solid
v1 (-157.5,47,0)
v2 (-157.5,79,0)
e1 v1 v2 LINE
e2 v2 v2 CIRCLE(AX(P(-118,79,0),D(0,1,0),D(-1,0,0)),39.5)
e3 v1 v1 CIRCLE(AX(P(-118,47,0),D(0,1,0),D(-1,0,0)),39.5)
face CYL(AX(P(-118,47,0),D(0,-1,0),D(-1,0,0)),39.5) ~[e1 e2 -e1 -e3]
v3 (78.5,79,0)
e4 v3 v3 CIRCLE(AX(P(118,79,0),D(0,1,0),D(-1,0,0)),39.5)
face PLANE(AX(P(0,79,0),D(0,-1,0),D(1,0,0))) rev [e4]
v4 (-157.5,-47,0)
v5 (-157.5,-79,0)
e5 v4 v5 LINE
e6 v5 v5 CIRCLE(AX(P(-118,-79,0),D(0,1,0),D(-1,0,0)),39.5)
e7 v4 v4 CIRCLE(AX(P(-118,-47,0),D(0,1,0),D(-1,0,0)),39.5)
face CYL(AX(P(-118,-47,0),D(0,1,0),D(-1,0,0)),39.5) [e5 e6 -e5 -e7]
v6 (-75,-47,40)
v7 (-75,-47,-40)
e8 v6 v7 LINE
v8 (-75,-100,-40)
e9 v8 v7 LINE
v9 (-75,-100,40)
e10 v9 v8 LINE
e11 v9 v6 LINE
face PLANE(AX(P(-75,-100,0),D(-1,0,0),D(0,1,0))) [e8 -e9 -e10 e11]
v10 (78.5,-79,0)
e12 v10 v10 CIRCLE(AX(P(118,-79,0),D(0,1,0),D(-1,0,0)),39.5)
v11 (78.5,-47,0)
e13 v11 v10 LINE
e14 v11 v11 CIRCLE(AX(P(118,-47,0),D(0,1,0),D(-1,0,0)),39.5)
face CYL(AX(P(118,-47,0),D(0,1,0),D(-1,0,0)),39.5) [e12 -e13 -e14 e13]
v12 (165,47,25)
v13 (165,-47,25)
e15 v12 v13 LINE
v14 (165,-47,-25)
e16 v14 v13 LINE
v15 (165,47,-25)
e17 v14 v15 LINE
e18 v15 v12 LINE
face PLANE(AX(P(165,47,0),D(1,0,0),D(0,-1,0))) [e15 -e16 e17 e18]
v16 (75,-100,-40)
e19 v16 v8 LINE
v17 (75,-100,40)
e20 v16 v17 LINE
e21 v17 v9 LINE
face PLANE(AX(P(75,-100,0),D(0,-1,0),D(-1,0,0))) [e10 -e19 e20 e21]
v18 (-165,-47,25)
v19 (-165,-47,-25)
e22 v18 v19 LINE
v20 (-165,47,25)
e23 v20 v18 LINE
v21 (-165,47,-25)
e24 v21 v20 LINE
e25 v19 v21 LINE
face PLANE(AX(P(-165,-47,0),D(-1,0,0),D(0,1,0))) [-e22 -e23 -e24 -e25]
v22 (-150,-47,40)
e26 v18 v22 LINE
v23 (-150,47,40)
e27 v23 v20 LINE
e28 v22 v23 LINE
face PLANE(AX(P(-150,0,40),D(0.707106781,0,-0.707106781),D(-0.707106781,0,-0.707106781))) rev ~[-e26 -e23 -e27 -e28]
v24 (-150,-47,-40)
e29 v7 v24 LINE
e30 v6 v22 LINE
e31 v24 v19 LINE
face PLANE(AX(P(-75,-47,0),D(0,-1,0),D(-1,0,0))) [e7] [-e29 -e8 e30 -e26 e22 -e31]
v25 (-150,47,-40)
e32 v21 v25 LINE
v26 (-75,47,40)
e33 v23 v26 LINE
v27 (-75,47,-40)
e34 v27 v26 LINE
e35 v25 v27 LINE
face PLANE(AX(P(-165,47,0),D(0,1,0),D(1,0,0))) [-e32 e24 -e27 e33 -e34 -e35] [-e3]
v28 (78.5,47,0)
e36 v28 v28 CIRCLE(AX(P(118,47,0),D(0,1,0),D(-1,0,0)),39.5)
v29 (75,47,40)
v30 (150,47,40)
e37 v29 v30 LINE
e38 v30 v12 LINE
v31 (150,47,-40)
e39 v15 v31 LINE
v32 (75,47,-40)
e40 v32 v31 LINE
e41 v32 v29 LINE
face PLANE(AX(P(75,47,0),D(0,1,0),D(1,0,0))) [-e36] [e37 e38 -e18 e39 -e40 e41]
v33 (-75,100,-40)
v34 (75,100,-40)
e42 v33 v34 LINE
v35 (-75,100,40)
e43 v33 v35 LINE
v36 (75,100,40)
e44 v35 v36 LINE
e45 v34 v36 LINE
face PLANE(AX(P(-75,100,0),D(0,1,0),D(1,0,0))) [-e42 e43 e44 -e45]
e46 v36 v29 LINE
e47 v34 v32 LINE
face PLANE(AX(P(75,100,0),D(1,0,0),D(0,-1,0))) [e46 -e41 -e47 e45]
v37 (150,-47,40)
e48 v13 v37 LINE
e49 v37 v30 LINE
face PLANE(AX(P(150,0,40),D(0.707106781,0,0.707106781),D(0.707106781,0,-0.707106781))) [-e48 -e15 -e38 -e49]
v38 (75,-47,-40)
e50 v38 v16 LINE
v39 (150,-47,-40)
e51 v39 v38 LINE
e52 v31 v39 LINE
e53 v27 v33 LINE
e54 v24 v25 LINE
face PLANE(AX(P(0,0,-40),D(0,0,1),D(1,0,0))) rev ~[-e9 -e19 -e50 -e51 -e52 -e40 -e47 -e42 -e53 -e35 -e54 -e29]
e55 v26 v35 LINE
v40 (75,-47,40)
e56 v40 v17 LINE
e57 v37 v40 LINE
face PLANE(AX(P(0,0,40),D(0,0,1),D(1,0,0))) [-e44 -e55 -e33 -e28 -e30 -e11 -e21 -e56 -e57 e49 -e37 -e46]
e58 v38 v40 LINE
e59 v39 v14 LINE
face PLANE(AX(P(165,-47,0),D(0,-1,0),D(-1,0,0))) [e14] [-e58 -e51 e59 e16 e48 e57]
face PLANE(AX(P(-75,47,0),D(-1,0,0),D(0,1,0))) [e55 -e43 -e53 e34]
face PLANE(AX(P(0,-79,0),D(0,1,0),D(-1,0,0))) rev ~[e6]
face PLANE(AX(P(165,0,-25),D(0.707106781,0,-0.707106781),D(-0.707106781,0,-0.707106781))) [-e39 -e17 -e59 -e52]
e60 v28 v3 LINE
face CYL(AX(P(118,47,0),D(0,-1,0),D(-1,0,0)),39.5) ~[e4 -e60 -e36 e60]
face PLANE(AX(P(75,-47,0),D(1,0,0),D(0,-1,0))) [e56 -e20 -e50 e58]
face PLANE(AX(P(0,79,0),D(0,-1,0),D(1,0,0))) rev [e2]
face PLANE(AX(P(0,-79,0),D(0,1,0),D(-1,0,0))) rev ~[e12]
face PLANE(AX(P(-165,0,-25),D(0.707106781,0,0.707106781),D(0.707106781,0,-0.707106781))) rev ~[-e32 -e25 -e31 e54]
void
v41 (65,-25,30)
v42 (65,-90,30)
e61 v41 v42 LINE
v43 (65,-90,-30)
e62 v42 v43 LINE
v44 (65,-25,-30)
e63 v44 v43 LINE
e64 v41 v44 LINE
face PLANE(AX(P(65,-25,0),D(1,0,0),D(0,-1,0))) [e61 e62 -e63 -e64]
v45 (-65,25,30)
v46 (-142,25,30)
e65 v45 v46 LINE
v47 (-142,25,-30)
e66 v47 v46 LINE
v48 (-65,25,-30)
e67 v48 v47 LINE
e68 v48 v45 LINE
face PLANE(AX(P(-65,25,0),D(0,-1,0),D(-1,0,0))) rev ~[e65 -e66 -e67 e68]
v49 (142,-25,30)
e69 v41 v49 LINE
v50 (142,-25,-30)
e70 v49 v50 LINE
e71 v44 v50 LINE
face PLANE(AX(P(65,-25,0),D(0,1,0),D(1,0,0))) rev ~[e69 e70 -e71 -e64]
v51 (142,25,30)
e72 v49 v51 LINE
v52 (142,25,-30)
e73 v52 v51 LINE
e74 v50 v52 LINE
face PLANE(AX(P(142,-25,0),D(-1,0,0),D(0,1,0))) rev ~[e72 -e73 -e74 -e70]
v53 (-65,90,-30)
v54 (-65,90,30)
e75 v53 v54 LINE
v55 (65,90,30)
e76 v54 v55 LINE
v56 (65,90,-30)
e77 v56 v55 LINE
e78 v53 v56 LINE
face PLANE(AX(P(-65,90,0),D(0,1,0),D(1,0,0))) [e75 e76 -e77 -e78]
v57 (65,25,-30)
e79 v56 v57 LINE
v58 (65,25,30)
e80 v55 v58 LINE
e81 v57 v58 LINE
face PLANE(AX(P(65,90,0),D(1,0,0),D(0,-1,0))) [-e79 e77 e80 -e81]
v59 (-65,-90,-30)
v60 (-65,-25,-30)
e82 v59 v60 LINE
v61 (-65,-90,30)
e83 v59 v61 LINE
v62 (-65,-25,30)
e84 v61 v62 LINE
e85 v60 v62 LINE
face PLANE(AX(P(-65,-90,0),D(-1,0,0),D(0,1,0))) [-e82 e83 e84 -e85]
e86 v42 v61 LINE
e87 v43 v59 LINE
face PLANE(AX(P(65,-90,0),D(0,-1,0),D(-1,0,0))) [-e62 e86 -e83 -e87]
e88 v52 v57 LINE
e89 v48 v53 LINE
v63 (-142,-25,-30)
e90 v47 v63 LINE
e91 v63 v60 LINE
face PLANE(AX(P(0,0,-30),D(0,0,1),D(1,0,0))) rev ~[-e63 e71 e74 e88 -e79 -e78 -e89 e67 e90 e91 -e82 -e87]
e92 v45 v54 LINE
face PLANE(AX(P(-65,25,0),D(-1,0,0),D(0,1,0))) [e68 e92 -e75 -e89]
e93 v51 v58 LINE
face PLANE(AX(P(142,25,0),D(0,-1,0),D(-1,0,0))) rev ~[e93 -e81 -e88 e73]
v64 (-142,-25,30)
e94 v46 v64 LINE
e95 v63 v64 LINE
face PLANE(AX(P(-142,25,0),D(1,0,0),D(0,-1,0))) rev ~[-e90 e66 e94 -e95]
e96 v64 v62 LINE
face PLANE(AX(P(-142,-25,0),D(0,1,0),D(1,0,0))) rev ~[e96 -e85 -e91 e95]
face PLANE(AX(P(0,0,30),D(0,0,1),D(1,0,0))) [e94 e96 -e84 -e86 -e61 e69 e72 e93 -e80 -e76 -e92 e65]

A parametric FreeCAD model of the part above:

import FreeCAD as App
import Part
import Sketcher

V = App.Vector
Q = App.Units.Quantity


def add_polygon(sketch, points):
    """Adds a closed chain of lines whose ends are joined by coincident constraints."""
    first, n = sketch.GeometryCount, len(points)
    for a, b in zip(points, points[1:] + points[:1]):
        sketch.addGeometry(Part.LineSegment(App.Vector(*a, 0), App.Vector(*b, 0)), False)
    for i in range(n):
        sketch.addConstraint(Sketcher.Constraint("Coincident", first + i, 2, first + (i + 1) % n, 1))

doc = App.newDocument("Part")
body = doc.addObject("PartDesign::Body", "Body")

# Sketch on XY plane
sketch1 = body.newObject("Sketcher::SketchObject", "Sketch")
sketch1.AttachmentSupport = (doc.getObject("XY_Plane"), [""])
sketch1.MapMode = "FlatFace"
add_polygon(sketch1, [(-75, -100), (75, -100), (75, -47), (165, -47), (165, 47), (75, 47), (75, 100), (-75, 100), (-75, 47), (-165, 47), (-165, -47), (-75, -47)])  # lines 0-11
sketch1.addConstraint([
    Sketcher.Constraint("Horizontal", 0),
    Sketcher.Constraint("Vertical", 1),
    Sketcher.Constraint("Horizontal", 2),
    Sketcher.Constraint("Vertical", 3),
    Sketcher.Constraint("Horizontal", 4),
    Sketcher.Constraint("Vertical", 5),
    Sketcher.Constraint("Horizontal", 6),
    Sketcher.Constraint("Vertical", 7),
    Sketcher.Constraint("Horizontal", 8),
    Sketcher.Constraint("Vertical", 9),
    Sketcher.Constraint("Horizontal", 10),
    Sketcher.Constraint("Vertical", 11),
    Sketcher.Constraint("Symmetric", 0, 2, 6, 2, -1, 1),
    Sketcher.Constraint("Symmetric", 2, 2, 8, 2, -1, 1),
    Sketcher.Constraint("Symmetric", 4, 2, 10, 2, -1, 1),
    Sketcher.Constraint("Symmetric", 4, 2, 7, 2, -2),
    Sketcher.Constraint("DistanceX", 0, 1, 0, 2, Q("150 mm")),
    Sketcher.Constraint("DistanceY", 3, 1, 3, 2, Q("94 mm")),
    Sketcher.Constraint("DistanceY", 0, 2, 5, 2, Q("200 mm")),
    Sketcher.Constraint("DistanceX", 2, 1, 2, 2, Q("90 mm")),
])
pad1 = body.newObject("PartDesign::Pad", "Pad")
pad1.Profile = sketch1
pad1.Length = 80
pad1.Midplane = True

# Sketch on XZ plane
sketch2 = body.newObject("Sketcher::SketchObject", "Sketch001")
sketch2.AttachmentSupport = (doc.getObject("XZ_Plane"), [""])
sketch2.MapMode = "FlatFace"
sketch2.AttachmentOffset = App.Placement(V(0, 0, 47), App.Rotation())
sketch2.addGeometry([
    Part.Circle(V(118, 0, 0), V(0, 0, 1), 40),
    Part.Circle(V(-118, 0, 0), V(0, 0, 1), 40),
], False)
sketch2.addConstraint([
    Sketcher.Constraint("Equal", 0, 1),
    Sketcher.Constraint("Symmetric", 0, 3, 1, 3, -1, 1),
    Sketcher.Constraint("PointOnObject", 0, 3, -1),
    Sketcher.Constraint("Diameter", 0, Q("79 mm")),
    Sketcher.Constraint("DistanceX", 1, 3, 0, 3, Q("236 mm")),
])
pad2 = body.newObject("PartDesign::Pad", "Pad001")
pad2.Profile = sketch2
pad2.Length = 32

# Sketch on XY plane
sketch3 = body.newObject("Sketcher::SketchObject", "Sketch002")
sketch3.AttachmentSupport = (doc.getObject("XY_Plane"), [""])
sketch3.MapMode = "FlatFace"
add_polygon(sketch3, [(142, -25), (142, 25), (65, 25), (65, 90), (-65, 90), (-65, 25), (-142, 25), (-142, -25), (-65, -25), (-65, -90), (65, -90), (65, -25)])  # lines 0-11
sketch3.addConstraint([
    Sketcher.Constraint("Vertical", 0),
    Sketcher.Constraint("Horizontal", 1),
    Sketcher.Constraint("Vertical", 2),
    Sketcher.Constraint("Horizontal", 3),
    Sketcher.Constraint("Vertical", 4),
    Sketcher.Constraint("Horizontal", 5),
    Sketcher.Constraint("Vertical", 6),
    Sketcher.Constraint("Horizontal", 7),
    Sketcher.Constraint("Vertical", 8),
    Sketcher.Constraint("Horizontal", 9),
    Sketcher.Constraint("Vertical", 10),
    Sketcher.Constraint("Horizontal", 11),
    Sketcher.Constraint("Symmetric", 0, 2, 6, 2, -1, 1),
    Sketcher.Constraint("Symmetric", 2, 2, 8, 2, -1, 1),
    Sketcher.Constraint("Symmetric", 4, 2, 10, 2, -1, 1),
    Sketcher.Constraint("Symmetric", 1, 2, 4, 2, -2),
    Sketcher.Constraint("DistanceX", 1, 2, 1, 1, Q("77 mm")),
    Sketcher.Constraint("DistanceX", 3, 2, 3, 1, Q("130 mm")),
    Sketcher.Constraint("DistanceY", 0, 1, 0, 2, Q("50 mm")),
    Sketcher.Constraint("DistanceY", 2, 1, 2, 2, Q("65 mm")),
])
pocket1 = body.newObject("PartDesign::Pocket", "Pocket")
pocket1.Profile = sketch3
pocket1.Length = 60
pocket1.Midplane = True

# Sketch on XZ plane
sketch4 = body.newObject("Sketcher::SketchObject", "Sketch003")
sketch4.AttachmentSupport = (doc.getObject("XZ_Plane"), [""])
sketch4.MapMode = "FlatFace"
add_polygon(sketch4, [(150, -40), (165, -25), (165, -40)])  # lines 0-2
add_polygon(sketch4, [(165, 25), (150, 40), (165, 40)])  # lines 3-5
add_polygon(sketch4, [(-165, 25), (-165, 40), (-150, 40)])  # lines 6-8
add_polygon(sketch4, [(-165, -40), (-165, -25), (-150, -40)])  # lines 9-11
sketch4.addConstraint([
    Sketcher.Constraint("Vertical", 1),
    Sketcher.Constraint("Horizontal", 2),
    Sketcher.Constraint("Horizontal", 4),
    Sketcher.Constraint("Vertical", 5),
    Sketcher.Constraint("Vertical", 6),
    Sketcher.Constraint("Horizontal", 7),
    Sketcher.Constraint("Vertical", 9),
    Sketcher.Constraint("Horizontal", 11),
    Sketcher.Constraint("Symmetric", 1, 2, 6, 2, -1, 1),
    Sketcher.Constraint("Symmetric", 5, 2, 9, 2, -1, 1),
    Sketcher.Constraint("Symmetric", 3, 2, 10, 2, -1, 1),
    Sketcher.Constraint("Symmetric", 4, 2, 6, 2, -2),
    Sketcher.Constraint("Perpendicular", 0, 3),
    Sketcher.Constraint("Perpendicular", 3, 8),
    Sketcher.Constraint("Horizontal", 5, 2, 8, 2),
    Sketcher.Constraint("Horizontal", 0, 2, 9, 2),
    Sketcher.Constraint("Vertical", 2, 2, 3, 2),
    Sketcher.Constraint("DistanceX", 2, 2, 2, 1, Q("15 mm")),
    Sketcher.Constraint("DistanceX", -1, 1, 0, 2, Q("165 mm")),
    Sketcher.Constraint("DistanceY", 0, 2, -1, 1, Q("25 mm")),
])
pocket2 = body.newObject("PartDesign::Pocket", "Pocket001")
pocket2.Profile = sketch4
pocket2.Type = "ThroughAll"
pocket2.Midplane = True
doc.recompute()

mirrored = body.newObject("PartDesign::Mirrored", "Mirrored")
mirrored.Originals = [pad2]
mirrored.MirrorPlane = (doc.getObject("XZ_Plane"), [""])
body.Tip = mirrored

doc.recompute()
